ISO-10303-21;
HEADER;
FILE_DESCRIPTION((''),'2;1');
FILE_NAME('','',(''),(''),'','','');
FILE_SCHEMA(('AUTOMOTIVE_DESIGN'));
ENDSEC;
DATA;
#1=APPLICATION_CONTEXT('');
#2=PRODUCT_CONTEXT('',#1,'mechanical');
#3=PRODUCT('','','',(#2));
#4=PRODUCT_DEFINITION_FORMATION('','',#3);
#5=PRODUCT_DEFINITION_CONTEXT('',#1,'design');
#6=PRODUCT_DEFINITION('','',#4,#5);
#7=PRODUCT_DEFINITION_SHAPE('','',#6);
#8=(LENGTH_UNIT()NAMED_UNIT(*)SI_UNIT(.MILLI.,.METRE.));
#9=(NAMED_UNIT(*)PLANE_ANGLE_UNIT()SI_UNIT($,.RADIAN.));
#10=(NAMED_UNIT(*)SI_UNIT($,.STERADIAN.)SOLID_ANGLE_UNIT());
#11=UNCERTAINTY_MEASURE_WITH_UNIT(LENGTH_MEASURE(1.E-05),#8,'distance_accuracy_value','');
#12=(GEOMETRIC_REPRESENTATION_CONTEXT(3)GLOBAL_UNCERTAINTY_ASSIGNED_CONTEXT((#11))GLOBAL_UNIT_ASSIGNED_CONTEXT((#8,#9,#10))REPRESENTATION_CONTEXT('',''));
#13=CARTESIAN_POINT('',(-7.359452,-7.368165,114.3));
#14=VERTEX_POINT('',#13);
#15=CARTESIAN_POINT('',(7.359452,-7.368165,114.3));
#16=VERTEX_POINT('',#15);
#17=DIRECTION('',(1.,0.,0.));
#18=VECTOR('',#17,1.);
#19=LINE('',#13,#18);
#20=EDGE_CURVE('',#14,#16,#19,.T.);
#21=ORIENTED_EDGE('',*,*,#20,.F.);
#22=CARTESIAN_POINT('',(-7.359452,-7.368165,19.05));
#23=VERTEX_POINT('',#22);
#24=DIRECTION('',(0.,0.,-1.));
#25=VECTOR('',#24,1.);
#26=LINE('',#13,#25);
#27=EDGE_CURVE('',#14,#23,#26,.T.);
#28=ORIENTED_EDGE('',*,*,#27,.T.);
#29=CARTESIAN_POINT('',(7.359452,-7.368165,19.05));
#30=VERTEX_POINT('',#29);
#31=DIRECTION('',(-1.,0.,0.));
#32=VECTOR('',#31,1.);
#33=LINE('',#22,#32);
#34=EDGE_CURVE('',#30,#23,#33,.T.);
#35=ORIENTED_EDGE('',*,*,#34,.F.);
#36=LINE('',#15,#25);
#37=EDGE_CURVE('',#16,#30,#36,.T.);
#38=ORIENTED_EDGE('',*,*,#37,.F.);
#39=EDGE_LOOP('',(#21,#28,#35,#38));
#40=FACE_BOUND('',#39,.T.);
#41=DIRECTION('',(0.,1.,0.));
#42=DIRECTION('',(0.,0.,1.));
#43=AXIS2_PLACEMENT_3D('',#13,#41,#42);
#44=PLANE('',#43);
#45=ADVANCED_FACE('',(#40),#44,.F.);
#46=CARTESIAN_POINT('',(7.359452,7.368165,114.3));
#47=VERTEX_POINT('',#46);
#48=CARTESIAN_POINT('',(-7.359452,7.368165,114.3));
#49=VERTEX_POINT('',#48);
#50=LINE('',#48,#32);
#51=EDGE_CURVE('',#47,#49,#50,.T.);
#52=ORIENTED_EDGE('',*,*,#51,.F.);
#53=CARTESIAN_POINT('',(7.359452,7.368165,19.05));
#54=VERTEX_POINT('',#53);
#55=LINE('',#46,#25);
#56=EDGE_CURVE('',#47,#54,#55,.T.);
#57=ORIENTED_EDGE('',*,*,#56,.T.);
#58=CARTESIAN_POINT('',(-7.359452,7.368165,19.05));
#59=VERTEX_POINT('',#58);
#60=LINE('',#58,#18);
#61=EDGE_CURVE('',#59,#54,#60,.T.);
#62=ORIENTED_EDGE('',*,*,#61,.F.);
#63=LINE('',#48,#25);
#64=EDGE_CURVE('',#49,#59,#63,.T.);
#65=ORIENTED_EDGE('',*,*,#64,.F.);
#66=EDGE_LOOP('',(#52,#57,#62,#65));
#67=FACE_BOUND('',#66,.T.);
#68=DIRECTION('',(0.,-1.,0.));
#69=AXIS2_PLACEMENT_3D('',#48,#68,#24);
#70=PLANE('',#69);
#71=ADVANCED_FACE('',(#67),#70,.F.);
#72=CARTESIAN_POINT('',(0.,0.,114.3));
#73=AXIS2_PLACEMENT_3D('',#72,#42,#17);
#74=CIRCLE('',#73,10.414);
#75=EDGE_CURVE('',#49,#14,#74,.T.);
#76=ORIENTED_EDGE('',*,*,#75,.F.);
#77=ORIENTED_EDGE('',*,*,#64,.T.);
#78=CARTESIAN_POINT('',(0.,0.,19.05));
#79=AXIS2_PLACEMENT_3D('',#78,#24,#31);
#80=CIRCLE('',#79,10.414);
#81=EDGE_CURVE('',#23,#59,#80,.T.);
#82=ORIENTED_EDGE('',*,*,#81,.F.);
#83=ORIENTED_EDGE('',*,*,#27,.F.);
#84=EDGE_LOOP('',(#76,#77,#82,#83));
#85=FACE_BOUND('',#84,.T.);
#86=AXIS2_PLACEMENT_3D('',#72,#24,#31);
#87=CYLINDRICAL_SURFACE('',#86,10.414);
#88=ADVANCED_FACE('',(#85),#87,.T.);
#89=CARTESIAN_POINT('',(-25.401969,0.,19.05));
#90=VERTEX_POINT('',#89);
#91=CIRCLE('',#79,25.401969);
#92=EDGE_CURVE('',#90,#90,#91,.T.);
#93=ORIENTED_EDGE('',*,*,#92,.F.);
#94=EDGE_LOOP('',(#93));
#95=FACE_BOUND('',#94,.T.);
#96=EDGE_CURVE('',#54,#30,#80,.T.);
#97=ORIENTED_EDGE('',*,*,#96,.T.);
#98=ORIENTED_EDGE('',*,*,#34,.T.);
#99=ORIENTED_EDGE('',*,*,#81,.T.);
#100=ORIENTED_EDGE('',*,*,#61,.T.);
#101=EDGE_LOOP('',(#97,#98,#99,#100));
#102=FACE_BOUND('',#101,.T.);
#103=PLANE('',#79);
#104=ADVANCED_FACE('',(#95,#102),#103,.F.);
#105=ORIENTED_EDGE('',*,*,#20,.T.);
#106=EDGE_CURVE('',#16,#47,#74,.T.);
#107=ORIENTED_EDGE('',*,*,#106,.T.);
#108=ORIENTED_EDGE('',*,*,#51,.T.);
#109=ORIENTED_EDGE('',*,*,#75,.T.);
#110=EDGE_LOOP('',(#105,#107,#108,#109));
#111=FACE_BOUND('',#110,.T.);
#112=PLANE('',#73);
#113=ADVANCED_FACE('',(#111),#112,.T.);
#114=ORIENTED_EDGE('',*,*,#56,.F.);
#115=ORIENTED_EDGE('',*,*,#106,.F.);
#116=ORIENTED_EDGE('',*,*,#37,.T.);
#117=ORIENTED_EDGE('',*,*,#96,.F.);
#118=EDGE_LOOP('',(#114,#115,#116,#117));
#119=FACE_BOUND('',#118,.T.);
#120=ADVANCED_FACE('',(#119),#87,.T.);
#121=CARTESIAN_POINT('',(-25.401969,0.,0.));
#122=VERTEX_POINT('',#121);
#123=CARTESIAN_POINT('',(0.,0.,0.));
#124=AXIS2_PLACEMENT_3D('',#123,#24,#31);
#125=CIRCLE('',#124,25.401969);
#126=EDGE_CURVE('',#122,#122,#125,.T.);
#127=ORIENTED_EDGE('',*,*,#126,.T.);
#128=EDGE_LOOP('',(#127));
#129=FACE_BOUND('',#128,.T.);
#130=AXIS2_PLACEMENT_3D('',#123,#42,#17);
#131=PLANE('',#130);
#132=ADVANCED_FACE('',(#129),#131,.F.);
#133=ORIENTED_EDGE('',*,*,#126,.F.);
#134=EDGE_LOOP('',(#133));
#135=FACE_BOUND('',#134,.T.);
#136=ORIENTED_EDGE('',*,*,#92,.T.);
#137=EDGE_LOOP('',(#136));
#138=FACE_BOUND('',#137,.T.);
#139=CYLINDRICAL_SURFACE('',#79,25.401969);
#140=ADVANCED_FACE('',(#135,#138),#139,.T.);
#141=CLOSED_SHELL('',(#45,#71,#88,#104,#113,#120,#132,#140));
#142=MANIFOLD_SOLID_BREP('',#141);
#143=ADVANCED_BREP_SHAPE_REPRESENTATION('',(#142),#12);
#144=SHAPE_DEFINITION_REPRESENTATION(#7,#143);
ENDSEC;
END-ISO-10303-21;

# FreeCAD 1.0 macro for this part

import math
import FreeCAD as App
import Part
import Sketcher
Q = App.Units.Quantity

doc = App.newDocument("Part")
body = doc.addObject("PartDesign::Body", "Body")

# Sketch on XY plane
sketch1 = doc.addObject("Sketcher::SketchObject", "Sketch")
body.addObject(sketch1)
sketch1.AttachmentSupport = (doc.XY_Plane, [""])
sketch1.MapMode = "FlatFace"
sketch1.addGeometry([
    Part.LineSegment(App.Vector(-7.359452, -7.368165, 0), App.Vector(7.359452, -7.368165, 0)),
    Part.ArcOfCircle(Part.Circle(App.Vector(0, 0, 0), App.Vector(0, 0, 1), 10.414), math.radians(-45.033896), math.radians(45.033896)),
    Part.LineSegment(App.Vector(7.359452, 7.368165, 0), App.Vector(-7.359452, 7.368165, 0)),
    Part.ArcOfCircle(Part.Circle(App.Vector(0, 0, 0), App.Vector(0, 0, 1), 10.414), math.radians(134.966104), math.radians(225.033896)),
], False)
sketch1.addConstraint([
    Sketcher.Constraint("Coincident", 0, 2, 1, 1),
    Sketcher.Constraint("Coincident", 1, 2, 2, 1),
    Sketcher.Constraint("Coincident", 2, 2, 3, 1),
    Sketcher.Constraint("Coincident", 3, 2, 0, 1),
    Sketcher.Constraint("Horizontal", 0),
    Sketcher.Constraint("Horizontal", 2),
    Sketcher.Constraint("Coincident", 1, 3, -1, 1),
    Sketcher.Constraint("Coincident", 3, 3, -1, 1),
    Sketcher.Constraint("Equal", 1, 3),
    Sketcher.Constraint("Vertical", 0, 2, 1, 2),
    Sketcher.Constraint("Radius", 1, Q("0.41 in")),
    Sketcher.Constraint("DistanceX", 0, 1, 0, 2, Q("14.718905 mm")),
])
pad1 = doc.addObject("PartDesign::Pad", "Pad")
body.addObject(pad1)
pad1.Profile = sketch1
pad1.Length = Q("4.5 in")

# Sketch on XY plane
sketch2 = doc.addObject("Sketcher::SketchObject", "Sketch001")
body.addObject(sketch2)
sketch2.AttachmentSupport = (doc.XY_Plane, [""])
sketch2.MapMode = "FlatFace"
sketch2.addGeometry(Part.Circle(App.Vector(0, 0, 0), App.Vector(0, 0, 1), 25.401969), False)
sketch2.addConstraint([
    Sketcher.Constraint("Coincident", 0, 3, -1, 1),
    Sketcher.Constraint("Diameter", 0, Q("50.803939 mm")),
])
pad2 = doc.addObject("PartDesign::Pad", "Pad001")
body.addObject(pad2)
pad2.Profile = sketch2
pad2.Length = Q("0.75 in")

doc.recompute()
